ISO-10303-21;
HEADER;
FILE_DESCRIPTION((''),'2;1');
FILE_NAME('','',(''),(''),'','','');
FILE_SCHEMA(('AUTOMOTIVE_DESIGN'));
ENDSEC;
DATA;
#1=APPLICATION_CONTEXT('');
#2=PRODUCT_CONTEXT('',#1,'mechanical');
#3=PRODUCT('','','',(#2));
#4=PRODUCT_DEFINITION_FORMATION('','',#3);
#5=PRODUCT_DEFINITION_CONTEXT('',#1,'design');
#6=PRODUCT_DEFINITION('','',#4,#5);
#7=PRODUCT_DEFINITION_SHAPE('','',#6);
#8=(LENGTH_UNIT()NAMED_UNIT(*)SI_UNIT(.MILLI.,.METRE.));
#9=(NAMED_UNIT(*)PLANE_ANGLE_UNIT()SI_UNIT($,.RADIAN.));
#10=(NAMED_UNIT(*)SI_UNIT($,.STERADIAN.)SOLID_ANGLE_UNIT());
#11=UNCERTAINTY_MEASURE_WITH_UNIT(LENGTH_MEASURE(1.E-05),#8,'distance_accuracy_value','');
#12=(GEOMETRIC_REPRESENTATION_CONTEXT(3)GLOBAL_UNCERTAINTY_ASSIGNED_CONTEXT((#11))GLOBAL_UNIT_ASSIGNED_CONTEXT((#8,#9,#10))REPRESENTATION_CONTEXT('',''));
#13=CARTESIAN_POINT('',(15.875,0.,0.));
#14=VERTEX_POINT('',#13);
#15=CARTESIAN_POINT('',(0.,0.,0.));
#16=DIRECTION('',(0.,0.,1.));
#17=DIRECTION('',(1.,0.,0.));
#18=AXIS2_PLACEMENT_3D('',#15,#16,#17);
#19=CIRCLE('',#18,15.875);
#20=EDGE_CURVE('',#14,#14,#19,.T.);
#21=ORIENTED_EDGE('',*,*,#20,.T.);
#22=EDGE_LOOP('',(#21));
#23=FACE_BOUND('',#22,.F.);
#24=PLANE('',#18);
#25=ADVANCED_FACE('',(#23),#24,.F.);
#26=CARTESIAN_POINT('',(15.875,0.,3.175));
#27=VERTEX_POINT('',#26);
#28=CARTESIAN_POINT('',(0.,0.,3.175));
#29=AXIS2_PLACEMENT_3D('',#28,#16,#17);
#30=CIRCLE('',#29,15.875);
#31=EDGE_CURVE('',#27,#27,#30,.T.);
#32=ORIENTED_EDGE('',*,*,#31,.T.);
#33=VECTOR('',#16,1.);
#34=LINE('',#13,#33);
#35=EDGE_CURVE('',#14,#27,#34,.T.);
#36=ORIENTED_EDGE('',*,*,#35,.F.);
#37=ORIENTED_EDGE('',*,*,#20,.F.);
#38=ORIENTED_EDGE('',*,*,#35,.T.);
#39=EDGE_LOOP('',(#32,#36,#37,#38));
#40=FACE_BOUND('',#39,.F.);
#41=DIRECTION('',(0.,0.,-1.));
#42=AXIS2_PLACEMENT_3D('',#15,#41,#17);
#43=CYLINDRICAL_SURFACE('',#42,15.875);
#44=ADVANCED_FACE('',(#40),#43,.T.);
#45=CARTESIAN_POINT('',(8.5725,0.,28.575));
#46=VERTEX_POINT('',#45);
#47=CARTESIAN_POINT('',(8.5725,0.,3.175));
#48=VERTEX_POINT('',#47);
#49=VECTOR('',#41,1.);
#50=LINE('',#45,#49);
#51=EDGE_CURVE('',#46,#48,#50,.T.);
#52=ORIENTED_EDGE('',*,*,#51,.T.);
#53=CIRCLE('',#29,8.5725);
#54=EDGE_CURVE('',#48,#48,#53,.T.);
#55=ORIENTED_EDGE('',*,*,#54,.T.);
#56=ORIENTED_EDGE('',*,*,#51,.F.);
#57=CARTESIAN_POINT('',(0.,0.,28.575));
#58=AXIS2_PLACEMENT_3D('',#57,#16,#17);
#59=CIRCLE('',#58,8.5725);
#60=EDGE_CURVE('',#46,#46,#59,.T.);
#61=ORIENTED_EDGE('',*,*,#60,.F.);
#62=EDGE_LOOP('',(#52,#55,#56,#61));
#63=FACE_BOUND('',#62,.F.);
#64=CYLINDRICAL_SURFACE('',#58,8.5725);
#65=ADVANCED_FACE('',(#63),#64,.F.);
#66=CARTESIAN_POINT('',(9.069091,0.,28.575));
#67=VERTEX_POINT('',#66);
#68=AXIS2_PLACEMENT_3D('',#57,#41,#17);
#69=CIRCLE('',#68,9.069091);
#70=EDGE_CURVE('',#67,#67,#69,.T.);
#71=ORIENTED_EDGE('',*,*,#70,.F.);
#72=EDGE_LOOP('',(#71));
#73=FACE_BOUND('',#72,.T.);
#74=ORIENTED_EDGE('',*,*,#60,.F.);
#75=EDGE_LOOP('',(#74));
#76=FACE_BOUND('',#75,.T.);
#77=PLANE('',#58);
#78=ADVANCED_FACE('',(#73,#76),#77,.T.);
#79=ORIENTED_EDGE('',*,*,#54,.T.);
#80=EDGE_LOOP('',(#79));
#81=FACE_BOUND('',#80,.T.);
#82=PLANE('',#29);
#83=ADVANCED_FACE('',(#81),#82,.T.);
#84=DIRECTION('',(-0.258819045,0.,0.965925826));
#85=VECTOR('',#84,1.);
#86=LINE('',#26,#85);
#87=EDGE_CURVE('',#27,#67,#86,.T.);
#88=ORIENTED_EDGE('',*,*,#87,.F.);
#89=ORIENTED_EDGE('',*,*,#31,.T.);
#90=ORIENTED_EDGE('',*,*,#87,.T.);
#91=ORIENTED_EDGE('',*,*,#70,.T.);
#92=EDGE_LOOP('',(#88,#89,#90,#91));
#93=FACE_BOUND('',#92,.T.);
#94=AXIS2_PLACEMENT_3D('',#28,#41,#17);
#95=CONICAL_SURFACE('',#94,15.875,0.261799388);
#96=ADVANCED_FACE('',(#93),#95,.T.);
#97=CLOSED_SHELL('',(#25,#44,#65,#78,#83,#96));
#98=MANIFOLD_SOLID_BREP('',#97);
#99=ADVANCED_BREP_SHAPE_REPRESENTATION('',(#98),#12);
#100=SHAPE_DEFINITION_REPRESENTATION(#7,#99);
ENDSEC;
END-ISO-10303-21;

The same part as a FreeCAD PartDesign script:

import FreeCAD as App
import Part
import Sketcher
Q = App.Units.Quantity

doc = App.newDocument("Part")
body = doc.addObject("PartDesign::Body", "Body")

sketch1 = body.newObject("Sketcher::SketchObject", "Sketch")
sketch1.AttachmentSupport = (doc.getObject("XY_Plane"), [""])
sketch1.MapMode = "FlatFace"
sketch1.addGeometry(Part.Circle(App.Vector(0, 0, 0), App.Vector(0, 0, 1), 16), False)
sketch1.addConstraint(Sketcher.Constraint("Coincident", 0, 3, -1, 1))
sketch1.addConstraint(Sketcher.Constraint("Diameter", 0, Q("1.25 in")))
pad1 = body.newObject("PartDesign::Pad", "Pad")
pad1.Profile = sketch1
pad1.Length = Q("0.125 in")

sketch2 = body.newObject("Sketcher::SketchObject", "Sketch001")
sketch2.AttachmentSupport = (doc.getObject("XY_Plane"), [""])
sketch2.MapMode = "FlatFace"
sketch2.AttachmentOffset = App.Placement(App.Vector(0, 0, 0.125 * 25.4), App.Rotation())
sketch2.addGeometry(Part.Circle(App.Vector(0, 0, 0), App.Vector(0, 0, 1), 16), False)
sketch2.addConstraint(Sketcher.Constraint("Coincident", 0, 3, -1, 1))
sketch2.addConstraint(Sketcher.Constraint("Diameter", 0, Q("1.25 in")))
pad2 = body.newObject("PartDesign::Pad", "Pad001")
pad2.Profile = sketch2
pad2.Length = Q("1 in")
pad2.TaperAngle = -15

sketch3 = body.newObject("Sketcher::SketchObject", "Sketch002")
sketch3.AttachmentSupport = (doc.getObject("XY_Plane"), [""])
sketch3.MapMode = "FlatFace"
sketch3.AttachmentOffset = App.Placement(App.Vector(0, 0, 1.125 * 25.4), App.Rotation())
sketch3.addGeometry(Part.Circle(App.Vector(0, 0, 0), App.Vector(0, 0, 1), 9), False)
sketch3.addConstraint(Sketcher.Constraint("Coincident", 0, 3, -1, 1))
sketch3.addConstraint(Sketcher.Constraint("Diameter", 0, Q("0.675 in")))
pocket1 = body.newObject("PartDesign::Pocket", "Pocket")
pocket1.Profile = sketch3
pocket1.Length = Q("1 in")

doc.recompute()
